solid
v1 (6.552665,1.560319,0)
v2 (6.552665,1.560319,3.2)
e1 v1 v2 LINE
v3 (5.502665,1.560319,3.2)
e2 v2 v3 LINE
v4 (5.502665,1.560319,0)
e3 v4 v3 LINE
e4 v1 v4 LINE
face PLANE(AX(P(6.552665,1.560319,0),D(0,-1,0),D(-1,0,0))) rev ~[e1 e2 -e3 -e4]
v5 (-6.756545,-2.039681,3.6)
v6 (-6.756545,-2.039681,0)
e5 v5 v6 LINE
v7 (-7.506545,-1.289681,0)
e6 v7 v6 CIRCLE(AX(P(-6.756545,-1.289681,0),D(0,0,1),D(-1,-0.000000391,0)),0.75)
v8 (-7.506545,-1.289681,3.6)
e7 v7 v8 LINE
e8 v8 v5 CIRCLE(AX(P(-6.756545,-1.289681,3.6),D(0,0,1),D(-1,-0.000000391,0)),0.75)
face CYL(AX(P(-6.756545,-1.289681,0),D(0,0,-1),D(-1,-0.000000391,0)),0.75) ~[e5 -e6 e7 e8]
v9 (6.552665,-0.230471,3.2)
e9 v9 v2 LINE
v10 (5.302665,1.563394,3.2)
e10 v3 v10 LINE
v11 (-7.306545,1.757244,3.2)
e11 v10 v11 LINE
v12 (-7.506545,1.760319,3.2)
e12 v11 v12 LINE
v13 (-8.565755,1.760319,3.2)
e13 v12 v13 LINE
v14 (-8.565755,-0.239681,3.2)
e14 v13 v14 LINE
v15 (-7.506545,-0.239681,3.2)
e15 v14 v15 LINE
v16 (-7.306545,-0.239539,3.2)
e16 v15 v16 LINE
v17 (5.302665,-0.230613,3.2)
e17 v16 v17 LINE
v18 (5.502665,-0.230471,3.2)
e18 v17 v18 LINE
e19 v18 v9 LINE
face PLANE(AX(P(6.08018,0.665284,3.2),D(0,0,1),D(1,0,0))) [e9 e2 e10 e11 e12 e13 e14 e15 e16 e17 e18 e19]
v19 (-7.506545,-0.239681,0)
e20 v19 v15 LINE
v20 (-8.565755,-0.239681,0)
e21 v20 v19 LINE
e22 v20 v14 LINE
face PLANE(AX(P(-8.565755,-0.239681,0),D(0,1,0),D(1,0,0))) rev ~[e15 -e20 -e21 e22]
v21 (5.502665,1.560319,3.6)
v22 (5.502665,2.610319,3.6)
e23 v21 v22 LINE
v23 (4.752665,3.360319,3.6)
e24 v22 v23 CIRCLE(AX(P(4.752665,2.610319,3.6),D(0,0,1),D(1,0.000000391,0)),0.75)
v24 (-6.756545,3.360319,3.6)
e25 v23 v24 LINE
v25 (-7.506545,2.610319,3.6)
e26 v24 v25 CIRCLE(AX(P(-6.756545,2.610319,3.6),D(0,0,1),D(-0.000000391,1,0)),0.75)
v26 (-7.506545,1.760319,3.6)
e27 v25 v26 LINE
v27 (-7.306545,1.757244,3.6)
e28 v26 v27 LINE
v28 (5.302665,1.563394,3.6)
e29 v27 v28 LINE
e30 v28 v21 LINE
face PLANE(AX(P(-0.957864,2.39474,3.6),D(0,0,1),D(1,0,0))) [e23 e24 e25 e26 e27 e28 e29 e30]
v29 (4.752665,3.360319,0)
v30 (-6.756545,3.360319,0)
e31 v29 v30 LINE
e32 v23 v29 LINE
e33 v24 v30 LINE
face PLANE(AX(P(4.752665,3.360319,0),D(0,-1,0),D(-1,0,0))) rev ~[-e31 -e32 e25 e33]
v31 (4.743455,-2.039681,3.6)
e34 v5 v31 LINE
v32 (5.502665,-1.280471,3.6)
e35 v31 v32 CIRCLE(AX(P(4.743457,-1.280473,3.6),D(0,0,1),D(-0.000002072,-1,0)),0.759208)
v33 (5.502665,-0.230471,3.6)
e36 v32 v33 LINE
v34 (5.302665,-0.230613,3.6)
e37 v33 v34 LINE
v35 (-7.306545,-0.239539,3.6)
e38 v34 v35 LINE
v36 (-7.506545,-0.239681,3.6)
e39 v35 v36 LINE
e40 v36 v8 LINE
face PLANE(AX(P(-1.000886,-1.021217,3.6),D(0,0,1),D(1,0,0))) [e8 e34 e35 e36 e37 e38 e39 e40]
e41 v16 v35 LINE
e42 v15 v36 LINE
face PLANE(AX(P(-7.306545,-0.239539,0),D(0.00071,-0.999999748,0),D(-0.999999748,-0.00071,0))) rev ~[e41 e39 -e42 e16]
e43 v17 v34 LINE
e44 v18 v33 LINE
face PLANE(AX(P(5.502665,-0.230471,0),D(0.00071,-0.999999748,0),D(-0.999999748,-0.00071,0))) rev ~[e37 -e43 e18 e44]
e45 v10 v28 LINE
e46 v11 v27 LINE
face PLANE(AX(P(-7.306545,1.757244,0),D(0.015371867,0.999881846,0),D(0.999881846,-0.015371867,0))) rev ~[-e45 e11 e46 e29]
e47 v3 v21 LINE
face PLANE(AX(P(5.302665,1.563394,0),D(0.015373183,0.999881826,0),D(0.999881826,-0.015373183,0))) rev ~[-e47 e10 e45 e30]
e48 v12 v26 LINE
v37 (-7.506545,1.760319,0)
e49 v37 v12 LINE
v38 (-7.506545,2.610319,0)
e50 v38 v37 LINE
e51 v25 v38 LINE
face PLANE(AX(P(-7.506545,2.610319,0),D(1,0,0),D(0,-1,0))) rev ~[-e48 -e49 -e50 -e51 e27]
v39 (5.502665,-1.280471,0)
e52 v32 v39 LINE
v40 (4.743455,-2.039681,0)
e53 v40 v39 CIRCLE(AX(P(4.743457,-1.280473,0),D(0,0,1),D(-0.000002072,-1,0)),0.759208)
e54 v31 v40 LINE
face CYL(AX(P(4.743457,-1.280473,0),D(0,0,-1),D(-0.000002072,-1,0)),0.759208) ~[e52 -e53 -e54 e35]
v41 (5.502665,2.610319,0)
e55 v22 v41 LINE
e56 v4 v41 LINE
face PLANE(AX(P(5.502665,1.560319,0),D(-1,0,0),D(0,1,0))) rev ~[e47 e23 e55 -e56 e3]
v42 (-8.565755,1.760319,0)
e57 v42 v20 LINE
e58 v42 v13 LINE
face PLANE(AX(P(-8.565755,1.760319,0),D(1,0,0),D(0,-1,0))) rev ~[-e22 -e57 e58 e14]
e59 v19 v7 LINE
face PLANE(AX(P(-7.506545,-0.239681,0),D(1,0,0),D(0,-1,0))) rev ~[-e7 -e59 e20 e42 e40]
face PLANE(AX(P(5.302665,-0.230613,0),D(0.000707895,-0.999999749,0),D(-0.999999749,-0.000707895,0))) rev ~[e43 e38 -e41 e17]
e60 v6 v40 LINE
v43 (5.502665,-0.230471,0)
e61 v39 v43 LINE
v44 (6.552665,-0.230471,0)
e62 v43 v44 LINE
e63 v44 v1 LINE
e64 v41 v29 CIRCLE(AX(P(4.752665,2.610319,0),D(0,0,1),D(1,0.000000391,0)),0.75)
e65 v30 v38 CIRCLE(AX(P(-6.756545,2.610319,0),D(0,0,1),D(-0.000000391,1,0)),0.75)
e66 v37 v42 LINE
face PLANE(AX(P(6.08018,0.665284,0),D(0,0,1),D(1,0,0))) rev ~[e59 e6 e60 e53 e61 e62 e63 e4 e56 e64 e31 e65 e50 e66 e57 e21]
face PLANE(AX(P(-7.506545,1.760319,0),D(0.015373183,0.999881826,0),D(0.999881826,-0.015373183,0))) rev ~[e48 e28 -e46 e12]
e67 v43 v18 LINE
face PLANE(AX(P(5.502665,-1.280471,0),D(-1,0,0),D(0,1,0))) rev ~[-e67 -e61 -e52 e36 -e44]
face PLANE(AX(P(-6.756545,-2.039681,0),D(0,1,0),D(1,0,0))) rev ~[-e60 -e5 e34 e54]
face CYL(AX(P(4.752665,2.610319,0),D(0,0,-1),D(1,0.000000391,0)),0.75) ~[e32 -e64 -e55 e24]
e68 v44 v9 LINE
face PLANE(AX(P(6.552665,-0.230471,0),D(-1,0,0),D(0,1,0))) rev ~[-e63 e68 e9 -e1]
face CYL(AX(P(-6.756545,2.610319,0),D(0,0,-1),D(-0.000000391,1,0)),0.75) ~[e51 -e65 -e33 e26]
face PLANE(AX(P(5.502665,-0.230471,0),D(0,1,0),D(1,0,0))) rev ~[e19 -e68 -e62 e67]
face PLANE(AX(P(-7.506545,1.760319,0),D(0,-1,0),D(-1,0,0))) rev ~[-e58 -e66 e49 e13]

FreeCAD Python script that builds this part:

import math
import FreeCAD as App
import Part
import Sketcher

V = App.Vector

doc = App.newDocument("Part")
body = doc.addObject("PartDesign::Body", "Body")

# Sketch on XY plane
sketch1 = doc.addObject("Sketcher::SketchObject", "Sketch")
body.addObject(sketch1)
sketch1.AttachmentSupport = (doc.XY_Plane, [""])
sketch1.MapMode = "FlatFace"
sketch1.addGeometry([
    Part.LineSegment(V(-7.5, 1.8, 0), V(-8.6, 1.8, 0)),  # 0
    Part.LineSegment(V(-8.6, 1.8, 0), V(-8.6, -0.2, 0)),  # 1
    Part.LineSegment(V(-8.6, -0.2, 0), V(-7.5, -0.2, 0)),  # 2
    Part.LineSegment(V(-7.5, -0.2, 0), V(-7.5, -1.3, 0)),  # 3
    Part.ArcOfCircle(Part.Circle(V(-6.8, -1.3, 0), V(0, 0, 1), 0.8), math.radians(-180), math.radians(-90)),  # 4
    Part.LineSegment(V(-6.8, -2, 0), V(4.7, -2, 0)),  # 5
    Part.ArcOfCircle(Part.Circle(V(4.7, -1.3, 0), V(0, 0, 1), 0.8), math.radians(-90), math.radians(0)),  # 6
    Part.LineSegment(V(5.5, -1.3, 0), V(5.5, -0.2, 0)),  # 7
    Part.LineSegment(V(5.5, -0.2, 0), V(6.6, -0.2, 0)),  # 8
    Part.LineSegment(V(6.6, -0.2, 0), V(6.6, 1.6, 0)),  # 9
    Part.LineSegment(V(6.6, 1.6, 0), V(5.5, 1.6, 0)),  # 10
    Part.LineSegment(V(5.5, 1.6, 0), V(5.5, 2.6, 0)),  # 11
    Part.ArcOfCircle(Part.Circle(V(4.8, 2.6, 0), V(0, 0, 1), 0.8), math.radians(0), math.radians(90)),  # 12
    Part.LineSegment(V(4.8, 3.4, 0), V(-6.8, 3.4, 0)),  # 13
    Part.ArcOfCircle(Part.Circle(V(-6.8, 2.6, 0), V(0, 0, 1), 0.8), math.radians(90), math.radians(180)),  # 14
    Part.LineSegment(V(-7.5, 2.6, 0), V(-7.5, 1.8, 0)),  # 15
], False)
sketch1.addConstraint([
    Sketcher.Constraint("Coincident", 0, 2, 1, 1),
    Sketcher.Constraint("Coincident", 1, 2, 2, 1),
    Sketcher.Constraint("Coincident", 2, 2, 3, 1),
    Sketcher.Constraint("Tangent", 3, 2, 4, 1),
    Sketcher.Constraint("Tangent", 4, 2, 5, 1),
    Sketcher.Constraint("Coincident", 5, 2, 6, 1),
    Sketcher.Constraint("Coincident", 6, 2, 7, 1),
    Sketcher.Constraint("Coincident", 7, 2, 8, 1),
    Sketcher.Constraint("Coincident", 8, 2, 9, 1),
    Sketcher.Constraint("Coincident", 9, 2, 10, 1),
    Sketcher.Constraint("Coincident", 10, 2, 11, 1),
    Sketcher.Constraint("Tangent", 11, 2, 12, 1),
    Sketcher.Constraint("Tangent", 12, 2, 13, 1),
    Sketcher.Constraint("Tangent", 13, 2, 14, 1),
    Sketcher.Constraint("Tangent", 14, 2, 15, 1),
    Sketcher.Constraint("Coincident", 15, 2, 0, 1),
    Sketcher.Constraint("Horizontal", 0),
    Sketcher.Constraint("Vertical", 1),
    Sketcher.Constraint("Horizontal", 2),
    Sketcher.Constraint("Vertical", 3),
    Sketcher.Constraint("Horizontal", 5),
    Sketcher.Constraint("Vertical", 7),
    Sketcher.Constraint("Horizontal", 8),
    Sketcher.Constraint("Vertical", 9),
    Sketcher.Constraint("Horizontal", 10),
    Sketcher.Constraint("Vertical", 11),
    Sketcher.Constraint("Horizontal", 13),
    Sketcher.Constraint("Vertical", 15),
    Sketcher.Constraint("Equal", 4, 12),
    Sketcher.Constraint("Equal", 12, 14),
    Sketcher.Constraint("Vertical", 4, 3, 14, 3),
    Sketcher.Constraint("Vertical", 6, 3, 5, 2),
    Sketcher.Constraint("Vertical", 7, 2, 10, 2),
    Sketcher.Constraint("Equal", 10, 3),
    Sketcher.Constraint("Equal", 3, 7),
    Sketcher.Constraint("Equal", 7, 11),
    Sketcher.Constraint("DistanceY", 1, 2, 1, 1, 2.0),
    Sketcher.Constraint("Radius", 4, 0.75),
    Sketcher.Constraint("DistanceX", 5, 1, 5, 2, 11.5),
    Sketcher.Constraint("DistanceX", 8, 1, 8, 2, 1.05),
    Sketcher.Constraint("DistanceY", 15, 2, 15, 1, 0.85),
    Sketcher.Constraint("Radius", 6, 0.759208),
    Sketcher.Constraint("DistanceY", 6, 3, 7, 2, 1.050002),
    Sketcher.Constraint("DistanceX", 0, 2, 0, 1, 1.05921),
    Sketcher.Constraint("DistanceY", 4, 3, -1, 1, 1.289681),
    Sketcher.Constraint("DistanceX", 4, 3, -1, 1, 6.756545),
])
pad1 = doc.addObject("PartDesign::Pad", "Pad")
body.addObject(pad1)
pad1.Profile = sketch1
pad1.Length = 3.2

# Sketch on XY plane
sketch2 = doc.addObject("Sketcher::SketchObject", "Sketch001")
body.addObject(sketch2)
sketch2.AttachmentSupport = (doc.XY_Plane, [""])
sketch2.MapMode = "FlatFace"
sketch2.addGeometry([
    Part.LineSegment(V(-7.31, 1.76, 0), V(5.3, 1.56, 0)),  # 0
    Part.LineSegment(V(5.3, 1.56, 0), V(5.5, 1.56, 0)),  # 1
    Part.LineSegment(V(5.5, 1.56, 0), V(5.5, 2.61, 0)),  # 2
    Part.ArcOfCircle(Part.Circle(V(4.75, 2.61, 0), V(0, 0, 1), 0.75), math.radians(0), math.radians(90)),  # 3
    Part.LineSegment(V(4.75, 3.36, 0), V(-6.76, 3.36, 0)),  # 4
    Part.ArcOfCircle(Part.Circle(V(-6.76, 2.61, 0), V(0, 0, 1), 0.75), math.radians(90), math.radians(180)),  # 5
    Part.LineSegment(V(-7.51, 2.61, 0), V(-7.51, 1.76, 0)),  # 6
    Part.LineSegment(V(-7.51, 1.76, 0), V(-7.31, 1.76, 0)),  # 7
    Part.LineSegment(V(5.3, -0.23, 0), V(-7.31, -0.24, 0)),  # 8
    Part.LineSegment(V(-7.31, -0.24, 0), V(-7.51, -0.24, 0)),  # 9
    Part.LineSegment(V(-7.51, -0.24, 0), V(-7.51, -1.29, 0)),  # 10
    Part.ArcOfCircle(Part.Circle(V(-6.76, -1.29, 0), V(0, 0, 1), 0.75), math.radians(-180), math.radians(-90)),  # 11
    Part.LineSegment(V(-6.76, -2.04, 0), V(4.74, -2.04, 0)),  # 12
    Part.ArcOfCircle(Part.Circle(V(4.74, -1.28, 0), V(0, 0, 1), 0.76), math.radians(-90), math.radians(0)),  # 13
    Part.LineSegment(V(5.5, -1.28, 0), V(5.5, -0.23, 0)),  # 14
    Part.LineSegment(V(5.5, -0.23, 0), V(5.3, -0.23, 0)),  # 15
], False)
sketch2.addConstraint([
    Sketcher.Constraint("Coincident", 0, 2, 1, 1),
    Sketcher.Constraint("Coincident", 1, 2, 2, 1),
    Sketcher.Constraint("Tangent", 2, 2, 3, 1),
    Sketcher.Constraint("Tangent", 3, 2, 4, 1),
    Sketcher.Constraint("Tangent", 4, 2, 5, 1),
    Sketcher.Constraint("Tangent", 5, 2, 6, 1),
    Sketcher.Constraint("Coincident", 6, 2, 7, 1),
    Sketcher.Constraint("Coincident", 7, 2, 0, 1),
    Sketcher.Constraint("Coincident", 8, 2, 9, 1),
    Sketcher.Constraint("Coincident", 9, 2, 10, 1),
    Sketcher.Constraint("Tangent", 10, 2, 11, 1),
    Sketcher.Constraint("Tangent", 11, 2, 12, 1),
    Sketcher.Constraint("Coincident", 12, 2, 13, 1),
    Sketcher.Constraint("Coincident", 13, 2, 14, 1),
    Sketcher.Constraint("Coincident", 14, 2, 15, 1),
    Sketcher.Constraint("Coincident", 15, 2, 8, 1),
    Sketcher.Constraint("Vertical", 2),
    Sketcher.Constraint("Horizontal", 4),
    Sketcher.Constraint("Vertical", 6),
    Sketcher.Constraint("Vertical", 10),
    Sketcher.Constraint("Horizontal", 12),
    Sketcher.Constraint("Vertical", 14),
    Sketcher.Constraint("Equal", 3, 5),
    Sketcher.Constraint("Equal", 5, 11),
    Sketcher.Constraint("Parallel", 0, 1),
    Sketcher.Constraint("Parallel", 1, 7),
    Sketcher.Constraint("Parallel", 9, 15),
    Sketcher.Constraint("Vertical", 5, 3, 11, 3),
    Sketcher.Constraint("Vertical", 7, 2, 8, 2),
    Sketcher.Constraint("Vertical", 13, 3, 12, 2),
    Sketcher.Constraint("Vertical", 2, 2, 13, 2),
    Sketcher.Constraint("Vertical", 0, 2, 15, 2),
    Sketcher.Constraint("Equal", 2, 10),
    Sketcher.Constraint("Equal", 10, 14),
    Sketcher.Constraint("Equal", 1, 7),
    Sketcher.Constraint("Radius", 3, 0.75),
    Sketcher.Constraint("DistanceX", 12, 1, 12, 2, 11.5),
    Sketcher.Constraint("DistanceY", 9, 2, 6, 2, 2.0),
    Sketcher.Constraint("Distance", 9, 0.2),
    Sketcher.Constraint("DistanceY", 2, 1, 2, 2, 1.05),
    Sketcher.Constraint("DistanceY", 6, 2, 6, 1, 0.85),
    Sketcher.Constraint("Radius", 13, 0.759208),
    Sketcher.Constraint("DistanceY", 13, 3, 14, 2, 1.050002),
    Sketcher.Constraint("DistanceY", -1, 1, 3, 3, 2.610319),
    Sketcher.Constraint("DistanceY", 8, 2, -1, 1, 0.239539),
    Sketcher.Constraint("DistanceX", -1, 1, 3, 3, 4.752665),
])
pad2 = doc.addObject("PartDesign::Pad", "Pad001")
body.addObject(pad2)
pad2.Profile = sketch2
pad2.Length = 3.6

doc.recompute()
